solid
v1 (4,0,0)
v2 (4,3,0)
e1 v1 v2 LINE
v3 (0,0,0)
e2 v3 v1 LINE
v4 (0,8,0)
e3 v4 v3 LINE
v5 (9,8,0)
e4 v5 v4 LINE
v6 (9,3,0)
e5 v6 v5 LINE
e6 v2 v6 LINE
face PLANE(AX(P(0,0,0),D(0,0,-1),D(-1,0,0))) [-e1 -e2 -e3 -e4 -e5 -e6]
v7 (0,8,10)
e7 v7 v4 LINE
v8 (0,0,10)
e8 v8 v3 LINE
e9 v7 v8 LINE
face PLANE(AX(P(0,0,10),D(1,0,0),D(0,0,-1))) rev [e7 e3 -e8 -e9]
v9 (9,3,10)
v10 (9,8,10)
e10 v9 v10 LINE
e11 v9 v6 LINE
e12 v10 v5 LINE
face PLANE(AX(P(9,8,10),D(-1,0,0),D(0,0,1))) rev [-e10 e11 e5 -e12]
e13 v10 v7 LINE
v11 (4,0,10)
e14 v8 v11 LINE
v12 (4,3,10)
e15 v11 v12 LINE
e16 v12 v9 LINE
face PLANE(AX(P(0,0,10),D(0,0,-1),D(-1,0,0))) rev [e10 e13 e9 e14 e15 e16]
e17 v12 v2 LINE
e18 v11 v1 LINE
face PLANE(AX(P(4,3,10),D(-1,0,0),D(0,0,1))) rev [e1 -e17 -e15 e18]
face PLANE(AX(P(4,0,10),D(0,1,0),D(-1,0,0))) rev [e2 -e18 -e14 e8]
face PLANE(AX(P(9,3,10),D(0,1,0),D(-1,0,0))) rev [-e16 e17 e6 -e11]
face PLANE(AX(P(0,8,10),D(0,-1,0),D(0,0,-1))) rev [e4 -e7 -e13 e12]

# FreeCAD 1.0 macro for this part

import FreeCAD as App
import Part
import Sketcher

V = App.Vector
Q = App.Units.Quantity


def add_polygon(sketch, points):
    """Adds a closed chain of lines whose ends are joined by coincident constraints."""
    first, n = sketch.GeometryCount, len(points)
    for a, b in zip(points, points[1:] + points[:1]):
        sketch.addGeometry(Part.LineSegment(App.Vector(*a, 0), App.Vector(*b, 0)), False)
    for i in range(n):
        sketch.addConstraint(Sketcher.Constraint("Coincident", first + i, 2, first + (i + 1) % n, 1))

doc = App.newDocument("Part")
body = doc.addObject("PartDesign::Body", "Body")

sketch1 = body.newObject("Sketcher::SketchObject", "Sketch")
sketch1.AttachmentSupport = (doc.getObject("XY_Plane"), [""])
sketch1.MapMode = "FlatFace"
add_polygon(sketch1, [(0, 8), (0, 0), (4, 0), (4, 3), (9, 3), (9, 8)])
sketch1.addConstraint([
    Sketcher.Constraint("Vertical", 0),
    Sketcher.Constraint("Horizontal", 1),
    Sketcher.Constraint("Vertical", 2),
    Sketcher.Constraint("Horizontal", 3),
    Sketcher.Constraint("Vertical", 4),
    Sketcher.Constraint("Horizontal", 5),
    Sketcher.Constraint("Coincident", 0, 2, -1, 1),
    Sketcher.Constraint("Equal", 3, 4),
    Sketcher.Constraint("DistanceX", 1, 1, 1, 2, Q("4 mm")),
    Sketcher.Constraint("DistanceX", 3, 1, 3, 2, Q("5 mm")),
    Sketcher.Constraint("DistanceY", 0, 2, 0, 1, Q("8 mm")),
])
pad1 = body.newObject("PartDesign::Pad", "Pad")
pad1.Profile = sketch1
pad1.Length = 10

doc.recompute()
